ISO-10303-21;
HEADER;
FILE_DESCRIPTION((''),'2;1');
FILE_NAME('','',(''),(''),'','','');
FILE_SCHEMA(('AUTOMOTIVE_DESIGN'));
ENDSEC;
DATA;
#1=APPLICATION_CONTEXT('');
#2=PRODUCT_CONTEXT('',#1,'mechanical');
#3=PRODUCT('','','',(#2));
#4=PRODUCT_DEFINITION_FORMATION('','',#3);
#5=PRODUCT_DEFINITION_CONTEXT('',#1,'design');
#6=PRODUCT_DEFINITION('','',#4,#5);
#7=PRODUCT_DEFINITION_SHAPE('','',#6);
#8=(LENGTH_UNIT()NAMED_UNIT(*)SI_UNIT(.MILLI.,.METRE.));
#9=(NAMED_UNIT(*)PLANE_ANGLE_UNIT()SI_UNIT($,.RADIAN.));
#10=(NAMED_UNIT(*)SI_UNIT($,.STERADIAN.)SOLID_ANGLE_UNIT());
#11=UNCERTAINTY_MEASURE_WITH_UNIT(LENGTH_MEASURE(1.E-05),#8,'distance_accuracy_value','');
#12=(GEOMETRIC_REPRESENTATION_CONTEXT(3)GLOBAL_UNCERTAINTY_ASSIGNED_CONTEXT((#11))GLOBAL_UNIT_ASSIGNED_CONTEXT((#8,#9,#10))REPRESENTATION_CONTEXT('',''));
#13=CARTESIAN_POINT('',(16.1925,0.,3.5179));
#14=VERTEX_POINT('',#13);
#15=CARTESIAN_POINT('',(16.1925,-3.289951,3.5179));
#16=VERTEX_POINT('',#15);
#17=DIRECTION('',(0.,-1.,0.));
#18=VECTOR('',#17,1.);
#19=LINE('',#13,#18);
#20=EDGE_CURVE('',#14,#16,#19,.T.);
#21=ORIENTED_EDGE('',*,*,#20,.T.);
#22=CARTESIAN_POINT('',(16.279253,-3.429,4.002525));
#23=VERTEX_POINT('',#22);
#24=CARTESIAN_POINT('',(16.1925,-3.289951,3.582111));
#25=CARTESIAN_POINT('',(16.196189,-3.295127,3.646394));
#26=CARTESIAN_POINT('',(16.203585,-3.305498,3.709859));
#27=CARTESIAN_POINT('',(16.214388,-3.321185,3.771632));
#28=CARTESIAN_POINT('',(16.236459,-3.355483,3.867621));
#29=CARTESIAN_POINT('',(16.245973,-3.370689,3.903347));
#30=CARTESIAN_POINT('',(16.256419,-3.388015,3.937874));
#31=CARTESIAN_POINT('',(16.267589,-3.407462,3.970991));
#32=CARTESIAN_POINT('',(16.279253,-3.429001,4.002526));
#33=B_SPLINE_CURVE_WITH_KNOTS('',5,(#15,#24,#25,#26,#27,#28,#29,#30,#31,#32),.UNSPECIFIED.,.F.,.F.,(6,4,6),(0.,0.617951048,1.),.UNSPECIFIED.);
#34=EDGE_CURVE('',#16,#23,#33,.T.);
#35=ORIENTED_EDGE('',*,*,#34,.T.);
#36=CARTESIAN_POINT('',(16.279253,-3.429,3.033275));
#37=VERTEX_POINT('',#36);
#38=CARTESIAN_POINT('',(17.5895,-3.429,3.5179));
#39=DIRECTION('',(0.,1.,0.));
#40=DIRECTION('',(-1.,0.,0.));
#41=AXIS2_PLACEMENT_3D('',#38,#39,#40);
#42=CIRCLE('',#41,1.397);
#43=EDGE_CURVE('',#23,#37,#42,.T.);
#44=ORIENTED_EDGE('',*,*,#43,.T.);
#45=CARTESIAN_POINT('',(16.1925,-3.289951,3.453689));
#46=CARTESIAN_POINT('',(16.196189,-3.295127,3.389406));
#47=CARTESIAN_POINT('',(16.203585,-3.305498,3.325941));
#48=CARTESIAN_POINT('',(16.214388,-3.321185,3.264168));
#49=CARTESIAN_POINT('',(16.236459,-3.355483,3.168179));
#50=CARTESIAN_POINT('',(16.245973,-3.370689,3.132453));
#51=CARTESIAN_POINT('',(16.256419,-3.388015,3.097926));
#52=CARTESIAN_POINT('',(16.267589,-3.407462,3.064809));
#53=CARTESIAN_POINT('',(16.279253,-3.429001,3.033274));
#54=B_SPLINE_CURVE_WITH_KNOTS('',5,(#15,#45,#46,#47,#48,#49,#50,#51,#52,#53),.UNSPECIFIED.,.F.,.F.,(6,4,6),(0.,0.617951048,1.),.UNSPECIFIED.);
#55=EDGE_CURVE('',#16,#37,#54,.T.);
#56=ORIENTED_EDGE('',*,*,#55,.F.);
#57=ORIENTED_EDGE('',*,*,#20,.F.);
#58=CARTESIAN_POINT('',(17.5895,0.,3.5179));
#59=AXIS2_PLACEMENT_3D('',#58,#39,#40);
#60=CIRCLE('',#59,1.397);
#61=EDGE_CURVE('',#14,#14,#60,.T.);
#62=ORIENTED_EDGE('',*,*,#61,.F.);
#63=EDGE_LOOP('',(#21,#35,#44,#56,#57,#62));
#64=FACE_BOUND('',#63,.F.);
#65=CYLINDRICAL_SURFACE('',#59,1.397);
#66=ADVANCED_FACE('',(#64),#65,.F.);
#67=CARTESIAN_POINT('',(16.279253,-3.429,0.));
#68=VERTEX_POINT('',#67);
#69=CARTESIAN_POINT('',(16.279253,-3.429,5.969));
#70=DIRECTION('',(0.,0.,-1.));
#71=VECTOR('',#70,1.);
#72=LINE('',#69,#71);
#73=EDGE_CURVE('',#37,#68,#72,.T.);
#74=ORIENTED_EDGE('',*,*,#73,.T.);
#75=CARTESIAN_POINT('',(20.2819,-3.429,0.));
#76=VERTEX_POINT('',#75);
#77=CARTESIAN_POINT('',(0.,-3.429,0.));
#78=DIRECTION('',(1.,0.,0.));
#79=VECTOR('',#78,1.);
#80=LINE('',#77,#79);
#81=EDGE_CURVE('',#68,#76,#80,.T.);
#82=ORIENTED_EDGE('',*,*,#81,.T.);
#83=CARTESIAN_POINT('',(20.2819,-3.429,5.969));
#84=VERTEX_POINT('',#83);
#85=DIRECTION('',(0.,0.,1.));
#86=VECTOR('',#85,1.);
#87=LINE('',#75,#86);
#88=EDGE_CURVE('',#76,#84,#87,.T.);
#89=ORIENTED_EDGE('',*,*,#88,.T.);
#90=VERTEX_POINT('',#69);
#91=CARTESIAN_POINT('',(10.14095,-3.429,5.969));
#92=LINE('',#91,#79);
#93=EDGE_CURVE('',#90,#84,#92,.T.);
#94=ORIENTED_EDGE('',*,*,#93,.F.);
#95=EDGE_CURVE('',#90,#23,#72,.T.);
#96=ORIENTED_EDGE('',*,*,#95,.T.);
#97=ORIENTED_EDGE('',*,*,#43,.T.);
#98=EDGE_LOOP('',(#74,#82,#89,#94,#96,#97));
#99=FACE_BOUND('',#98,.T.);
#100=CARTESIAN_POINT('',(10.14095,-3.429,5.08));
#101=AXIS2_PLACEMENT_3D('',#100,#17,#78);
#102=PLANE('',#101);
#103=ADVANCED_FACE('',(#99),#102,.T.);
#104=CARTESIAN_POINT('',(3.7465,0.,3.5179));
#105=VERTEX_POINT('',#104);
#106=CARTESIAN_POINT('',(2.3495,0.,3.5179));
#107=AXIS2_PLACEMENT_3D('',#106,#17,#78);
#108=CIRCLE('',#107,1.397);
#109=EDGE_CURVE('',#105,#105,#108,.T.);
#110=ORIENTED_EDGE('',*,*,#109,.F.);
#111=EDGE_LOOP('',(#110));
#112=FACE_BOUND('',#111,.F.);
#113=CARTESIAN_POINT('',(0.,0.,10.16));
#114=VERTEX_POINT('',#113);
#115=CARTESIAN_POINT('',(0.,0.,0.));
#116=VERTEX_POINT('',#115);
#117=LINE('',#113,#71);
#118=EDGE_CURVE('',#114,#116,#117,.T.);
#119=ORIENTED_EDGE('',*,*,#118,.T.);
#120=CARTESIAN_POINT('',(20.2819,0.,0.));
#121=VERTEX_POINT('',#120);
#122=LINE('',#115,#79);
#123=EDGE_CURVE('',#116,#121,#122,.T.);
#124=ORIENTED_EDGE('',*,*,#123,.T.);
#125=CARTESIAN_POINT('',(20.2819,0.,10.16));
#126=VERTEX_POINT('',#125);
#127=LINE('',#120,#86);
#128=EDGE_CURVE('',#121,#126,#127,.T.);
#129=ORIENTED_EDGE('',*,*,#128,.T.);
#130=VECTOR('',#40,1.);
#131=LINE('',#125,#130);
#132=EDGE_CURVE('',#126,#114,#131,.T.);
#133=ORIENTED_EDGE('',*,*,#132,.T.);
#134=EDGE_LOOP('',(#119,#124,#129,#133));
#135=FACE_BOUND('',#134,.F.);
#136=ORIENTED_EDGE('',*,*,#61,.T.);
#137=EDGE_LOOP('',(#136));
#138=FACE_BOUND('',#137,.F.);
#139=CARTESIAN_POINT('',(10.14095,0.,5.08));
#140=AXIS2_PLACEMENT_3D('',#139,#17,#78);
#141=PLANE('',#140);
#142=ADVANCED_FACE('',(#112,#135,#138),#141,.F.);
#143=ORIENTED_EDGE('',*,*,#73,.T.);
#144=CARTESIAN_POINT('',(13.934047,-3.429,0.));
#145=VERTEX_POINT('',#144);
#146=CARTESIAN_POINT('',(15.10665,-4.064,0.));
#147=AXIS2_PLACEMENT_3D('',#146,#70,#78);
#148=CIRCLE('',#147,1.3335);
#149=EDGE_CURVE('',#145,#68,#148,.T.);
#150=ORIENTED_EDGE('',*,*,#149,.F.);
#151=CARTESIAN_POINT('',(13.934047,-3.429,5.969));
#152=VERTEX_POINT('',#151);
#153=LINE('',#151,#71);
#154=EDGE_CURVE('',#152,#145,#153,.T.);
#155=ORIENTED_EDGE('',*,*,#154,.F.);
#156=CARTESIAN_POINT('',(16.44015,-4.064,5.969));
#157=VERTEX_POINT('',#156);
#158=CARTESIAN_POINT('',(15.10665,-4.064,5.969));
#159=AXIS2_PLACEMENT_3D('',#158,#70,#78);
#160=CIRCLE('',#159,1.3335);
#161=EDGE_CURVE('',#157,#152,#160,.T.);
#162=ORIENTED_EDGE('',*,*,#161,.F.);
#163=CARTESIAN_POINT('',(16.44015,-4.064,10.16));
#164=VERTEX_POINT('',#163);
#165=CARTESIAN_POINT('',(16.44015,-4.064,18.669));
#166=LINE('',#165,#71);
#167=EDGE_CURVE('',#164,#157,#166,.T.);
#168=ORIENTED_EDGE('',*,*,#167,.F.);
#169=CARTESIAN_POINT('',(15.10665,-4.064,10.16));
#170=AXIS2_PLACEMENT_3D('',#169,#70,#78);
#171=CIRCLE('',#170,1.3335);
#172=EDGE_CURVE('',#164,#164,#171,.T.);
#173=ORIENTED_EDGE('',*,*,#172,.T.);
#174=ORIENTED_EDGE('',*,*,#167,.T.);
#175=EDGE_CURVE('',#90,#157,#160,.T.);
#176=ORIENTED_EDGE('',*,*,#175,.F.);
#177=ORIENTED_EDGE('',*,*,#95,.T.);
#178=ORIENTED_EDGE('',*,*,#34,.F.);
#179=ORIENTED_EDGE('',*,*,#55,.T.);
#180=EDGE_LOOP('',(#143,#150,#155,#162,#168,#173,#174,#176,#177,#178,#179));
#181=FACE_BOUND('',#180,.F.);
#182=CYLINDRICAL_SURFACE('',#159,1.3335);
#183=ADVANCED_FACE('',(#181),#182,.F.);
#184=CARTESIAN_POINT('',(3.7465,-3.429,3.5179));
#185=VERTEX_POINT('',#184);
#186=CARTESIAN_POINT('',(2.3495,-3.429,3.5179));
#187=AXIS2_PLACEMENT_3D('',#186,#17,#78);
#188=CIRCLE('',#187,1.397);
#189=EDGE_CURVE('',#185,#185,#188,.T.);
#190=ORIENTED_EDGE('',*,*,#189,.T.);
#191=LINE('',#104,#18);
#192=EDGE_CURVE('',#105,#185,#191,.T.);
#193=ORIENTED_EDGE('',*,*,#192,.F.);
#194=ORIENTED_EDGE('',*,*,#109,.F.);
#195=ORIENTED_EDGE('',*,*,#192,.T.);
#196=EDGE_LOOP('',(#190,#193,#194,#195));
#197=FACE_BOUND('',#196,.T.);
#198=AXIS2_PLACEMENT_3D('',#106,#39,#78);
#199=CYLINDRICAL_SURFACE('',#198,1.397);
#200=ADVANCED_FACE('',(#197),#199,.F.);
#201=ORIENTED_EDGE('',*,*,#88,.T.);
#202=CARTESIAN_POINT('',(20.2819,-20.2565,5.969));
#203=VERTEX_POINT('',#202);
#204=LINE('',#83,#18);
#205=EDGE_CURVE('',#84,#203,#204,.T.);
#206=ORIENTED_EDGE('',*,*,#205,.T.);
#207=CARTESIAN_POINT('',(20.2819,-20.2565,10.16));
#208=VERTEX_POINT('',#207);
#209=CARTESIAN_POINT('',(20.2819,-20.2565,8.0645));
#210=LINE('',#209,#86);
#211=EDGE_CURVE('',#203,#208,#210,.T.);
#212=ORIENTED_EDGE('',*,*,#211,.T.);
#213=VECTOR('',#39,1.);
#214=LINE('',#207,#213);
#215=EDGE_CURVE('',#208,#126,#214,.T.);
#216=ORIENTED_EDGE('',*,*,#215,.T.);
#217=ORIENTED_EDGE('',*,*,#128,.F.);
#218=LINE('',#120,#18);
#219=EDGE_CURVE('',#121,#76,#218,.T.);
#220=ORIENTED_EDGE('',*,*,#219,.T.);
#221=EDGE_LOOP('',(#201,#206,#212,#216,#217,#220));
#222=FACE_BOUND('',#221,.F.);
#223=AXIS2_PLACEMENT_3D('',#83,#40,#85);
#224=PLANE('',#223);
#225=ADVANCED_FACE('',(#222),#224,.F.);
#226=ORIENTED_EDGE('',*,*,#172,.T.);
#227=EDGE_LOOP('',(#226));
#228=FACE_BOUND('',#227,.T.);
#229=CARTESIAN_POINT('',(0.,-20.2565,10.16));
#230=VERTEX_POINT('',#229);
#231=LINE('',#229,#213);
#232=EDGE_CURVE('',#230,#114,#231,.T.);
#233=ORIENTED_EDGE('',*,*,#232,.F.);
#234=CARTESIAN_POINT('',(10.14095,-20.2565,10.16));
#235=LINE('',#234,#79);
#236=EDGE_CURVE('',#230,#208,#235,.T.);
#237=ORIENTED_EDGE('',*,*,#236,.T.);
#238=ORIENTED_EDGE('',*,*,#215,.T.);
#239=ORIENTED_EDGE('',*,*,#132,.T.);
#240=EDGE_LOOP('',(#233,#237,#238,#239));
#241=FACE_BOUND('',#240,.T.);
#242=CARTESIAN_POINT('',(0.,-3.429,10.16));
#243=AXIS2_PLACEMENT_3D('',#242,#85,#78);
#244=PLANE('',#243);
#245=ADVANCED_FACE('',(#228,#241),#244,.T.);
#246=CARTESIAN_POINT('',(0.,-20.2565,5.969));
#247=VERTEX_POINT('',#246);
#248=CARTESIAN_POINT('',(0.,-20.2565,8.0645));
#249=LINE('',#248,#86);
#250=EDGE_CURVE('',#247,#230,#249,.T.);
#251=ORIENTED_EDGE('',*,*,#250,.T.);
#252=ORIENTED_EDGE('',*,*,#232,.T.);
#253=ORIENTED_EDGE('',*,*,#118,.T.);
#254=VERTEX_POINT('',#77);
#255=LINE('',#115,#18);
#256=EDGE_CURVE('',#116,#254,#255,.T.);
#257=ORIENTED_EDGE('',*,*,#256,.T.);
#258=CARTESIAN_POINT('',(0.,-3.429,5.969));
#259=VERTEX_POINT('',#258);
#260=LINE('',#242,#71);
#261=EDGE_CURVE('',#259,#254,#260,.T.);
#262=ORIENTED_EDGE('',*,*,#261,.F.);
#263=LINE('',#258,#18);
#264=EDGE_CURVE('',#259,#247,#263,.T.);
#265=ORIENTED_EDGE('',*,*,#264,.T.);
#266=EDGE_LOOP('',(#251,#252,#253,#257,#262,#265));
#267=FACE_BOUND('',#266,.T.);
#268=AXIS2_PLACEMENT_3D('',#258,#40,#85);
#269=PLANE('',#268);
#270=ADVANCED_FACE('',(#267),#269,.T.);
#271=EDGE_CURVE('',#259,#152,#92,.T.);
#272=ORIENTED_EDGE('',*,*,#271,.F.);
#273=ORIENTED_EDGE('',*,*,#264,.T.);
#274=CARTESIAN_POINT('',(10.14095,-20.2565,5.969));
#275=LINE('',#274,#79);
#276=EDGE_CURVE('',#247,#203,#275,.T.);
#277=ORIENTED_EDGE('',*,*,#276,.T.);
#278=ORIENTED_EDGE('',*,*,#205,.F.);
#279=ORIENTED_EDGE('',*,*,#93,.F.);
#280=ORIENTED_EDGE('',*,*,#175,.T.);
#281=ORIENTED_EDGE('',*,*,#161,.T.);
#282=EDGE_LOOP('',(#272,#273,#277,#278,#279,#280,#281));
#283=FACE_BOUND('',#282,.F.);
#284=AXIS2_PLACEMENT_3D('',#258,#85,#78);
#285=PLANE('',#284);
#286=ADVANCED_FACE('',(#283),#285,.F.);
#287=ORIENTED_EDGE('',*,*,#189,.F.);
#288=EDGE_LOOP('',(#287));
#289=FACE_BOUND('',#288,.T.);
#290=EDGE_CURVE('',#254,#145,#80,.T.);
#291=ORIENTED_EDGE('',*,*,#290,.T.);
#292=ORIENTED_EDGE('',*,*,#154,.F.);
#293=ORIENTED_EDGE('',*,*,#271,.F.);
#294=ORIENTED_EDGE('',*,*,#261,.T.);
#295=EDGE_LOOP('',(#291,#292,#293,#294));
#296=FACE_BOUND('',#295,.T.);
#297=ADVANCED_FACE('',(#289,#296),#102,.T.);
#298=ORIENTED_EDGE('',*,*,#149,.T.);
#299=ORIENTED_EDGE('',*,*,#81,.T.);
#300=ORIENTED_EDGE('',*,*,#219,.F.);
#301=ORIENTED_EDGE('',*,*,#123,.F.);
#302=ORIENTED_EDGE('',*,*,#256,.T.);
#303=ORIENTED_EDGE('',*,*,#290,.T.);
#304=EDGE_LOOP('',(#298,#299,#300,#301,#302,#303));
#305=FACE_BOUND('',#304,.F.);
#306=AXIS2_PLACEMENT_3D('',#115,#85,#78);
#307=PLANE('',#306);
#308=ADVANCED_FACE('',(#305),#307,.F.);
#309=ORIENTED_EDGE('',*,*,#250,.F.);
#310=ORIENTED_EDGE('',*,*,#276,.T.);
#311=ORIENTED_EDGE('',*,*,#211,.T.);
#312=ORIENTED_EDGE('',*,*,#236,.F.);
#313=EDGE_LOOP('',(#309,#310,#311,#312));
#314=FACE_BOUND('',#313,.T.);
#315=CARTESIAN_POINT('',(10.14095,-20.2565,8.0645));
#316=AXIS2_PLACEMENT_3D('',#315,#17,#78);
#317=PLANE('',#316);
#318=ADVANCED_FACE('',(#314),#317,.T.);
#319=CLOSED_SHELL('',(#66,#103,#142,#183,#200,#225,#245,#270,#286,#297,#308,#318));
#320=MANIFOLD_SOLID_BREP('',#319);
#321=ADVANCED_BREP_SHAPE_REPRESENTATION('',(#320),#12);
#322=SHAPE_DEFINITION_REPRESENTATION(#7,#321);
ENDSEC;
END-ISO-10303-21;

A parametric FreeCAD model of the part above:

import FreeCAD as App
import Part
import Sketcher
from FreeCAD import Vector
Q = App.Units.Quantity

doc = App.newDocument("Part")
body = doc.addObject("PartDesign::Body", "Body")

# Sketch on XZ plane
sketch1 = body.newObject("Sketcher::SketchObject", "Sketch")
sketch1.AttachmentSupport = (doc.getObject("XZ_Plane"), [""])
sketch1.MapMode = "FlatFace"
sketch1.addGeometry([
    Part.LineSegment(Vector(0, 10.16, 0), Vector(0, 0, 0)),  # 0
    Part.LineSegment(Vector(0, 0, 0), Vector(20.2819, 0, 0)),  # 1
    Part.LineSegment(Vector(20.2819, 0, 0), Vector(20.2819, 10.16, 0)),  # 2
    Part.LineSegment(Vector(20.2819, 10.16, 0), Vector(0, 10.16, 0)),  # 3
    Part.Circle(Vector(2.3495, 3.5179, 0), Vector(0, 0, 1), 1.397),  # 4
    Part.Circle(Vector(17.5895, 3.5179, 0), Vector(0, 0, 1), 1.397),  # 5
], False)
sketch1.addConstraint([
    Sketcher.Constraint("Coincident", 0, 2, 1, 1),
    Sketcher.Constraint("Coincident", 1, 2, 2, 1),
    Sketcher.Constraint("Coincident", 2, 2, 3, 1),
    Sketcher.Constraint("Coincident", 3, 2, 0, 1),
    Sketcher.Constraint("Vertical", 0),
    Sketcher.Constraint("Horizontal", 1),
    Sketcher.Constraint("Vertical", 2),
    Sketcher.Constraint("Horizontal", 3),
    Sketcher.Constraint("Coincident", 0, 2, -1, 1),
    Sketcher.Constraint("Equal", 4, 5),
    Sketcher.Constraint("Horizontal", 4, 3, 5, 3),
    Sketcher.Constraint("Diameter", 4, Q("0.11 in")),
    Sketcher.Constraint("DistanceY", 0, 2, 0, 1, Q("0.4 in")),
    Sketcher.Constraint("DistanceX", 4, 3, 5, 3, Q("0.6 in")),
    Sketcher.Constraint("DistanceX", 1, 1, 1, 2, Q("0.7985 in")),
    Sketcher.Constraint("DistanceX", 5, 3, 1, 2, Q("0.106 in")),
    Sketcher.Constraint("DistanceY", -1, 1, 4, 3, Q("0.1385 in")),
])
pad1 = body.newObject("PartDesign::Pad", "Pad")
pad1.Profile = sketch1
pad1.Length = Q("0.135 in")

# Sketch on XZ plane
sketch2 = body.newObject("Sketcher::SketchObject", "Sketch001")
sketch2.AttachmentSupport = (doc.getObject("XZ_Plane"), [""])
sketch2.MapMode = "FlatFace"
sketch2.AttachmentOffset = App.Placement(Vector(0, 0, 0.135 * 25.4), App.Rotation())
sketch2.addGeometry([
    Part.LineSegment(Vector(0, 10.16, 0), Vector(0, 5.969, 0)),
    Part.LineSegment(Vector(0, 5.969, 0), Vector(20.2819, 5.969, 0)),
    Part.LineSegment(Vector(20.2819, 5.969, 0), Vector(20.2819, 10.16, 0)),
    Part.LineSegment(Vector(20.2819, 10.16, 0), Vector(0, 10.16, 0)),
], False)
sketch2.addConstraint([
    Sketcher.Constraint("Coincident", 0, 2, 1, 1),
    Sketcher.Constraint("Coincident", 1, 2, 2, 1),
    Sketcher.Constraint("Coincident", 2, 2, 3, 1),
    Sketcher.Constraint("Coincident", 3, 2, 0, 1),
    Sketcher.Constraint("Vertical", 0),
    Sketcher.Constraint("Horizontal", 1),
    Sketcher.Constraint("Vertical", 2),
    Sketcher.Constraint("Horizontal", 3),
    Sketcher.Constraint("PointOnObject", 0, 2, -2),
    Sketcher.Constraint("DistanceY", -1, 1, 2, 2, Q("0.4 in")),
    Sketcher.Constraint("DistanceY", 0, 2, 0, 1, Q("0.165 in")),
    Sketcher.Constraint("DistanceX", 1, 1, 1, 2, Q("0.7985 in")),
])
pad2 = body.newObject("PartDesign::Pad", "Pad001")
pad2.Profile = sketch2
pad2.Length = Q("0.6625 in")

# Sketch on XY plane
sketch3 = body.newObject("Sketcher::SketchObject", "Sketch002")
sketch3.AttachmentSupport = (doc.getObject("XY_Plane"), [""])
sketch3.MapMode = "FlatFace"
sketch3.AttachmentOffset = App.Placement(Vector(0, 0, 0.235 * 25.4), App.Rotation())
sketch3.addGeometry(Part.Circle(Vector(15.10665, -4.064, 0), Vector(0, 0, 1), 1.3335), False)
sketch3.addConstraint([
    Sketcher.Constraint("Diameter", 0, Q("0.105 in")),
    Sketcher.Constraint("DistanceY", 0, 3, -1, 1, Q("0.16 in")),
    Sketcher.Constraint("DistanceX", -1, 1, 0, 3, Q("15.10665 mm")),
])
pocket1 = body.newObject("PartDesign::Pocket", "Pocket")
pocket1.Profile = sketch3
pocket1.Length = Q("1 in")
pocket1.Midplane = True

doc.recompute()
